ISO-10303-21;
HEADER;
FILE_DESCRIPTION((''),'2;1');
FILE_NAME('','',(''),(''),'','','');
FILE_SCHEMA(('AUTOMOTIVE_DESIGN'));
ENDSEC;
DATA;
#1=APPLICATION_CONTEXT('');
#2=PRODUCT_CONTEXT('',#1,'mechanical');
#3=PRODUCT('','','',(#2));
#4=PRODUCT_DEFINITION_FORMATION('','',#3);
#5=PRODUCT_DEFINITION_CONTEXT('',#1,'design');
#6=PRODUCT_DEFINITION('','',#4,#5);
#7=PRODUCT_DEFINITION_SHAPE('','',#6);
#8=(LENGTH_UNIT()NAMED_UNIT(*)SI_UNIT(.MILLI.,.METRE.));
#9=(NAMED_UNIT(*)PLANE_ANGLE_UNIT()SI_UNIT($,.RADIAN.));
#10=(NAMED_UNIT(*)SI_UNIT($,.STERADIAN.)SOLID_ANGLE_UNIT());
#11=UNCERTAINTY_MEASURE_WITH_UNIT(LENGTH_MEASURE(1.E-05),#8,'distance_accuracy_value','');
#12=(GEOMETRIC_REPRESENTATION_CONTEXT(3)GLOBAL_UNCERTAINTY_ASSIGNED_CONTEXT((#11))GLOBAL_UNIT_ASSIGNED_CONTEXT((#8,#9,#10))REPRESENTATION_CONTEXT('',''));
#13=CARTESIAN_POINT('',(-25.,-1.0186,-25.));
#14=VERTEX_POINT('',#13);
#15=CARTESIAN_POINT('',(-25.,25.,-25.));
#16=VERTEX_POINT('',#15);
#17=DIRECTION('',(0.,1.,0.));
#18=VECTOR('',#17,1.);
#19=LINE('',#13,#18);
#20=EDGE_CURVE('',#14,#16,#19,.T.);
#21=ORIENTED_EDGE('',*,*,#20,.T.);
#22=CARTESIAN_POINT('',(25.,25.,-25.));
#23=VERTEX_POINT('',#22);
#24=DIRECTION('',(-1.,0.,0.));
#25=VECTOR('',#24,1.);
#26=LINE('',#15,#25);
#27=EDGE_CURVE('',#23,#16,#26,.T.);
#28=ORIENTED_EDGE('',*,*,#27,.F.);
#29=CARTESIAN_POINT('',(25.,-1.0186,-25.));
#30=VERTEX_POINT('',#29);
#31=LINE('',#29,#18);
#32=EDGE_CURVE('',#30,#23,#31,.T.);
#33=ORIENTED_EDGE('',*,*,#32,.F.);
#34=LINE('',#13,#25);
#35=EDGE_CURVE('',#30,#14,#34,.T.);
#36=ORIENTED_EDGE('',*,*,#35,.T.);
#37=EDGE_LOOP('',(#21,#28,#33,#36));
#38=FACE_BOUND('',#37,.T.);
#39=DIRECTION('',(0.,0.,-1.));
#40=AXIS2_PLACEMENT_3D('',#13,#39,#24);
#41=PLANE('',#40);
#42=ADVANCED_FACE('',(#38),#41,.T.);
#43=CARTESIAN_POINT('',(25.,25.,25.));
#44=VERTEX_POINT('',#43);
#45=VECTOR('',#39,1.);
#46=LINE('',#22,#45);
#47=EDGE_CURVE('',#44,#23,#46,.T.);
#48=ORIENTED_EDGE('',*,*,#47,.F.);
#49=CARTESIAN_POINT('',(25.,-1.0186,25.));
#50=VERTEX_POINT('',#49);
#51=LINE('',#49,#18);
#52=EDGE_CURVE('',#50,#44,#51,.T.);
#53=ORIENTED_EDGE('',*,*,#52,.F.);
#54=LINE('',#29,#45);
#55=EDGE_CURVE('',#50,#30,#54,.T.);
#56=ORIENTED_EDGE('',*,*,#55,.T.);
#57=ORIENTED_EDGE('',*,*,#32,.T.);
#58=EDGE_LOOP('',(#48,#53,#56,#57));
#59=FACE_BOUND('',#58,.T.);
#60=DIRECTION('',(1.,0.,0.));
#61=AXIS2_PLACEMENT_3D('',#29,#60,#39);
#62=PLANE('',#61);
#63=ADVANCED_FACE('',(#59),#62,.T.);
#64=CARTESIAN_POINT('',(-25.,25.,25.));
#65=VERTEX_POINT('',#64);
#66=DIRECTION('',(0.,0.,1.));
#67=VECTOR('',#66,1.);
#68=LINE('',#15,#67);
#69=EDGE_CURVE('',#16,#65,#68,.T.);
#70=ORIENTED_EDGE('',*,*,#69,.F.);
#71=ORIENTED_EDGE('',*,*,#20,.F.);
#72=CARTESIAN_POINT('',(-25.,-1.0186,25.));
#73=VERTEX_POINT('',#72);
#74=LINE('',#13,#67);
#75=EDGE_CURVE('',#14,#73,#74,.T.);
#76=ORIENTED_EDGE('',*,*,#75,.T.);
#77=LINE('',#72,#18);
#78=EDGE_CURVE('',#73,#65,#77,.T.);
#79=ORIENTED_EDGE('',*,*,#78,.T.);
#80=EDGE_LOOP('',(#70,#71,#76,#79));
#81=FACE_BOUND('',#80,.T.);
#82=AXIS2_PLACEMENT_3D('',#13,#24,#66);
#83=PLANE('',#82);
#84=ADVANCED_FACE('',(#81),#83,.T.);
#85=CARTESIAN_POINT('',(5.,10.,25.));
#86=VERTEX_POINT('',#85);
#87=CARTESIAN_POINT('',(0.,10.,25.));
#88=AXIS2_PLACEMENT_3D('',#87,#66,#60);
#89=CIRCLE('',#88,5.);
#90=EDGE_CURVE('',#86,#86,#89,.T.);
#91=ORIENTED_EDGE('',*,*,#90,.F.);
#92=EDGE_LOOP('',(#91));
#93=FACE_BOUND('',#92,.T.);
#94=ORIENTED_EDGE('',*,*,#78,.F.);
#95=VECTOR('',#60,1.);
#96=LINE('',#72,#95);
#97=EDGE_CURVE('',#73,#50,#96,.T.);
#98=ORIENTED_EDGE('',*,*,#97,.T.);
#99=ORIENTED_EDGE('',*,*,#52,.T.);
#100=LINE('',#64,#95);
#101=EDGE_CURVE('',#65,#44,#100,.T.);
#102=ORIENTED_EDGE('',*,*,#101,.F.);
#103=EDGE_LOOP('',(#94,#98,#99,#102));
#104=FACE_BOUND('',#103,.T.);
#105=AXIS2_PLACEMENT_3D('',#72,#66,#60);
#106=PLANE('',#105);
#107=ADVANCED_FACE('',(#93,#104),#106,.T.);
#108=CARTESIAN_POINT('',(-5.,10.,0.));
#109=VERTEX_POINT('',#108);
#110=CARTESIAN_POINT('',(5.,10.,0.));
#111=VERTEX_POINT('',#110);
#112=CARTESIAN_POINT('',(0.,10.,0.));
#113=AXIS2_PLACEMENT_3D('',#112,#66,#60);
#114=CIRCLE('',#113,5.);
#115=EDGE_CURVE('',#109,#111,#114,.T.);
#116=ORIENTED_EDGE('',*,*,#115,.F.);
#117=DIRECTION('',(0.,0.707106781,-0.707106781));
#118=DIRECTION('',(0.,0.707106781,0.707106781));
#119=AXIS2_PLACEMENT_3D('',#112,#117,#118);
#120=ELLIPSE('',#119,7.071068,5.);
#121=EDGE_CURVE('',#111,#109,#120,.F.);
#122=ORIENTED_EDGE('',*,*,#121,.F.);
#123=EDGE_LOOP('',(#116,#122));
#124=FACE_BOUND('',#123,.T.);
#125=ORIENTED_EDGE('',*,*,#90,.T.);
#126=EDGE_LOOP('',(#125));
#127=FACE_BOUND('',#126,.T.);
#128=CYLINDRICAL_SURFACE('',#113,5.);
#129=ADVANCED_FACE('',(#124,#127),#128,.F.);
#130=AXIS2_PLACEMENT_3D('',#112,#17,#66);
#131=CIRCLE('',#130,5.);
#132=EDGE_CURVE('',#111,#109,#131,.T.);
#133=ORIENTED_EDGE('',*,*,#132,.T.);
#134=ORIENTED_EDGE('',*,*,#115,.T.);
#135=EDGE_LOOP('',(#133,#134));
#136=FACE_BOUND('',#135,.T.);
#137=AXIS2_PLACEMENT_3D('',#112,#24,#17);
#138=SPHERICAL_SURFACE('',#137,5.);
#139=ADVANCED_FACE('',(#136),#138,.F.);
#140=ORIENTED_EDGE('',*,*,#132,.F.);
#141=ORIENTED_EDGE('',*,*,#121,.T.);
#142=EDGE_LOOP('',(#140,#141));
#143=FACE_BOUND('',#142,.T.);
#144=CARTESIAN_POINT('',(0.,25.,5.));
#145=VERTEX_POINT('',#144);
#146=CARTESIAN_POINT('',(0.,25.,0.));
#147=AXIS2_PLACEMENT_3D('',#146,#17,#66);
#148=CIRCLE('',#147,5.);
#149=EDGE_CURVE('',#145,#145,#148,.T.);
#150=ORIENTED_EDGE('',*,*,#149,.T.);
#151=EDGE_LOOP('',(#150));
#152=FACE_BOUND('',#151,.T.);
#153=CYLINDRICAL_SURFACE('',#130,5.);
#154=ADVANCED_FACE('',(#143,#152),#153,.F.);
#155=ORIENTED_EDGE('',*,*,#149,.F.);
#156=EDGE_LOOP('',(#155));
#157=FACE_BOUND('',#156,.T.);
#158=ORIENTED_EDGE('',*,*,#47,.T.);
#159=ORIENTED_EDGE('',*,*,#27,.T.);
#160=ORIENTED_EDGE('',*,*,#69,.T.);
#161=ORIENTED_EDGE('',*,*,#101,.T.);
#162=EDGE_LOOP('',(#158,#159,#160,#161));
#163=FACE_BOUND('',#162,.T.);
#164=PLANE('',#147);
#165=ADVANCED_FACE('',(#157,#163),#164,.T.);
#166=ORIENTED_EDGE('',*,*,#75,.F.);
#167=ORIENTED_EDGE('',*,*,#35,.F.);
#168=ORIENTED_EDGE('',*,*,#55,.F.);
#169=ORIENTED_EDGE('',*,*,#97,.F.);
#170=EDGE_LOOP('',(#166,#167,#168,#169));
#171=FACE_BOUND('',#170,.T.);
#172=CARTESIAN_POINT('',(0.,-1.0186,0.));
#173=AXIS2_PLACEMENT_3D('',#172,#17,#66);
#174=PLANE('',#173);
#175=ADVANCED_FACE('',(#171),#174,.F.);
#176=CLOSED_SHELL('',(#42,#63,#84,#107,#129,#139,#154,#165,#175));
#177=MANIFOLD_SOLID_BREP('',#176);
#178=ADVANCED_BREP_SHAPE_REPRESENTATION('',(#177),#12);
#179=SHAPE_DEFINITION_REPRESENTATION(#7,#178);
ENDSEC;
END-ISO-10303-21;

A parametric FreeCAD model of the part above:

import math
import FreeCAD as App
import Part
import Sketcher
Q = App.Units.Quantity


def add_polygon(sketch, points):
    """Adds a closed chain of lines whose ends are joined by coincident constraints."""
    first, n = sketch.GeometryCount, len(points)
    for a, b in zip(points, points[1:] + points[:1]):
        sketch.addGeometry(Part.LineSegment(App.Vector(*a, 0), App.Vector(*b, 0)), False)
    for i in range(n):
        sketch.addConstraint(Sketcher.Constraint("Coincident", first + i, 2, first + (i + 1) % n, 1))

doc = App.newDocument("Part")
body = doc.addObject("PartDesign::Body", "Body")

sketch1 = body.newObject("Sketcher::SketchObject", "Sketch")
sketch1.AttachmentSupport = (doc.getObject("XZ_Plane"), [""])
sketch1.MapMode = "FlatFace"
add_polygon(sketch1, [(-25, -25), (-25, 25), (25, 25), (25, -25)])
sketch1.addConstraint([
    Sketcher.Constraint("Vertical", 0),
    Sketcher.Constraint("Horizontal", 1),
    Sketcher.Constraint("Vertical", 2),
    Sketcher.Constraint("Horizontal", 3),
    Sketcher.Constraint("Symmetric", 0, 2, 2, 2, -1, 1),
    Sketcher.Constraint("Equal", 3, 0),
    Sketcher.Constraint("DistanceX", 1, 1, 1, 2, Q("50 mm")),
])
pad1 = body.newObject("PartDesign::Pad", "Pad")
pad1.Profile = sketch1
pad1.Type = "TwoLengths"
pad1.Length = 25
pad1.Length2 = 1.0186
pad1.Reversed = True

sketch2 = body.newObject("Sketcher::SketchObject", "Sketch001")
sketch2.AttachmentSupport = (doc.getObject("XY_Plane"), [""])
sketch2.MapMode = "FlatFace"
sketch2.addGeometry([
    Part.LineSegment(App.Vector(-5, 10, 0), App.Vector(5, 10, 0)),
    Part.ArcOfCircle(Part.Circle(App.Vector(0, 10, 0), App.Vector(0, 0, 1), 5), math.radians(0), math.radians(180)),
], False)
sketch2.addGeometry(Part.LineSegment(App.Vector(-5, 10, 0), App.Vector(5, 10, 0)), True)
sketch2.addConstraint([
    Sketcher.Constraint("Coincident", 0, 1, 1, 2),
    Sketcher.Constraint("Coincident", 1, 1, 0, 2),
    Sketcher.Constraint("Horizontal", 0),
    Sketcher.Constraint("Horizontal", 2),
    Sketcher.Constraint("Coincident", 2, 1, 0, 1),
    Sketcher.Constraint("PointOnObject", 1, 3, -2),
    Sketcher.Constraint("Horizontal", 1, 3, 0, 1),
    Sketcher.Constraint("Equal", 0, 2),
    Sketcher.Constraint("Radius", 1, Q("5 mm")),
    Sketcher.Constraint("DistanceY", -1, 1, 1, 3, Q("10 mm")),
])
groove = body.newObject("PartDesign::Groove", "Groove")
groove.Profile = sketch2
groove.ReferenceAxis = (sketch2, ["Axis0"])
groove.Angle = 360

sketch3 = body.newObject("Sketcher::SketchObject", "Sketch002")
sketch3.AttachmentSupport = (doc.getObject("XZ_Plane"), [""])
sketch3.MapMode = "FlatFace"
sketch3.AttachmentOffset = App.Placement(App.Vector(0, 0, -25), App.Rotation())
sketch3.addGeometry(Part.Circle(App.Vector(0, 0, 0), App.Vector(0, 0, 1), 5), False)
sketch3.addConstraint([
    Sketcher.Constraint("Coincident", 0, 3, -1, 1),
    Sketcher.Constraint("Diameter", 0, Q("10 mm")),
])
pocket1 = body.newObject("PartDesign::Pocket", "Pocket")
pocket1.Profile = sketch3
pocket1.Length = 15
pocket1.Reversed = True

sketch4 = body.newObject("Sketcher::SketchObject", "Sketch003")
sketch4.AttachmentSupport = (doc.getObject("XY_Plane"), [""])
sketch4.MapMode = "FlatFace"
sketch4.AttachmentOffset = App.Placement(App.Vector(0, 0, 25), App.Rotation())
sketch4.addGeometry(Part.Circle(App.Vector(0, 10, 0), App.Vector(0, 0, 1), 5), False)
sketch4.addConstraint([
    Sketcher.Constraint("PointOnObject", 0, 3, -2),
    Sketcher.Constraint("Diameter", 0, Q("10 mm")),
    Sketcher.Constraint("DistanceY", -1, 1, 0, 3, Q("10 mm")),
])
pocket2 = body.newObject("PartDesign::Pocket", "Pocket001")
pocket2.Profile = sketch4
pocket2.Length = 25

doc.recompute()
